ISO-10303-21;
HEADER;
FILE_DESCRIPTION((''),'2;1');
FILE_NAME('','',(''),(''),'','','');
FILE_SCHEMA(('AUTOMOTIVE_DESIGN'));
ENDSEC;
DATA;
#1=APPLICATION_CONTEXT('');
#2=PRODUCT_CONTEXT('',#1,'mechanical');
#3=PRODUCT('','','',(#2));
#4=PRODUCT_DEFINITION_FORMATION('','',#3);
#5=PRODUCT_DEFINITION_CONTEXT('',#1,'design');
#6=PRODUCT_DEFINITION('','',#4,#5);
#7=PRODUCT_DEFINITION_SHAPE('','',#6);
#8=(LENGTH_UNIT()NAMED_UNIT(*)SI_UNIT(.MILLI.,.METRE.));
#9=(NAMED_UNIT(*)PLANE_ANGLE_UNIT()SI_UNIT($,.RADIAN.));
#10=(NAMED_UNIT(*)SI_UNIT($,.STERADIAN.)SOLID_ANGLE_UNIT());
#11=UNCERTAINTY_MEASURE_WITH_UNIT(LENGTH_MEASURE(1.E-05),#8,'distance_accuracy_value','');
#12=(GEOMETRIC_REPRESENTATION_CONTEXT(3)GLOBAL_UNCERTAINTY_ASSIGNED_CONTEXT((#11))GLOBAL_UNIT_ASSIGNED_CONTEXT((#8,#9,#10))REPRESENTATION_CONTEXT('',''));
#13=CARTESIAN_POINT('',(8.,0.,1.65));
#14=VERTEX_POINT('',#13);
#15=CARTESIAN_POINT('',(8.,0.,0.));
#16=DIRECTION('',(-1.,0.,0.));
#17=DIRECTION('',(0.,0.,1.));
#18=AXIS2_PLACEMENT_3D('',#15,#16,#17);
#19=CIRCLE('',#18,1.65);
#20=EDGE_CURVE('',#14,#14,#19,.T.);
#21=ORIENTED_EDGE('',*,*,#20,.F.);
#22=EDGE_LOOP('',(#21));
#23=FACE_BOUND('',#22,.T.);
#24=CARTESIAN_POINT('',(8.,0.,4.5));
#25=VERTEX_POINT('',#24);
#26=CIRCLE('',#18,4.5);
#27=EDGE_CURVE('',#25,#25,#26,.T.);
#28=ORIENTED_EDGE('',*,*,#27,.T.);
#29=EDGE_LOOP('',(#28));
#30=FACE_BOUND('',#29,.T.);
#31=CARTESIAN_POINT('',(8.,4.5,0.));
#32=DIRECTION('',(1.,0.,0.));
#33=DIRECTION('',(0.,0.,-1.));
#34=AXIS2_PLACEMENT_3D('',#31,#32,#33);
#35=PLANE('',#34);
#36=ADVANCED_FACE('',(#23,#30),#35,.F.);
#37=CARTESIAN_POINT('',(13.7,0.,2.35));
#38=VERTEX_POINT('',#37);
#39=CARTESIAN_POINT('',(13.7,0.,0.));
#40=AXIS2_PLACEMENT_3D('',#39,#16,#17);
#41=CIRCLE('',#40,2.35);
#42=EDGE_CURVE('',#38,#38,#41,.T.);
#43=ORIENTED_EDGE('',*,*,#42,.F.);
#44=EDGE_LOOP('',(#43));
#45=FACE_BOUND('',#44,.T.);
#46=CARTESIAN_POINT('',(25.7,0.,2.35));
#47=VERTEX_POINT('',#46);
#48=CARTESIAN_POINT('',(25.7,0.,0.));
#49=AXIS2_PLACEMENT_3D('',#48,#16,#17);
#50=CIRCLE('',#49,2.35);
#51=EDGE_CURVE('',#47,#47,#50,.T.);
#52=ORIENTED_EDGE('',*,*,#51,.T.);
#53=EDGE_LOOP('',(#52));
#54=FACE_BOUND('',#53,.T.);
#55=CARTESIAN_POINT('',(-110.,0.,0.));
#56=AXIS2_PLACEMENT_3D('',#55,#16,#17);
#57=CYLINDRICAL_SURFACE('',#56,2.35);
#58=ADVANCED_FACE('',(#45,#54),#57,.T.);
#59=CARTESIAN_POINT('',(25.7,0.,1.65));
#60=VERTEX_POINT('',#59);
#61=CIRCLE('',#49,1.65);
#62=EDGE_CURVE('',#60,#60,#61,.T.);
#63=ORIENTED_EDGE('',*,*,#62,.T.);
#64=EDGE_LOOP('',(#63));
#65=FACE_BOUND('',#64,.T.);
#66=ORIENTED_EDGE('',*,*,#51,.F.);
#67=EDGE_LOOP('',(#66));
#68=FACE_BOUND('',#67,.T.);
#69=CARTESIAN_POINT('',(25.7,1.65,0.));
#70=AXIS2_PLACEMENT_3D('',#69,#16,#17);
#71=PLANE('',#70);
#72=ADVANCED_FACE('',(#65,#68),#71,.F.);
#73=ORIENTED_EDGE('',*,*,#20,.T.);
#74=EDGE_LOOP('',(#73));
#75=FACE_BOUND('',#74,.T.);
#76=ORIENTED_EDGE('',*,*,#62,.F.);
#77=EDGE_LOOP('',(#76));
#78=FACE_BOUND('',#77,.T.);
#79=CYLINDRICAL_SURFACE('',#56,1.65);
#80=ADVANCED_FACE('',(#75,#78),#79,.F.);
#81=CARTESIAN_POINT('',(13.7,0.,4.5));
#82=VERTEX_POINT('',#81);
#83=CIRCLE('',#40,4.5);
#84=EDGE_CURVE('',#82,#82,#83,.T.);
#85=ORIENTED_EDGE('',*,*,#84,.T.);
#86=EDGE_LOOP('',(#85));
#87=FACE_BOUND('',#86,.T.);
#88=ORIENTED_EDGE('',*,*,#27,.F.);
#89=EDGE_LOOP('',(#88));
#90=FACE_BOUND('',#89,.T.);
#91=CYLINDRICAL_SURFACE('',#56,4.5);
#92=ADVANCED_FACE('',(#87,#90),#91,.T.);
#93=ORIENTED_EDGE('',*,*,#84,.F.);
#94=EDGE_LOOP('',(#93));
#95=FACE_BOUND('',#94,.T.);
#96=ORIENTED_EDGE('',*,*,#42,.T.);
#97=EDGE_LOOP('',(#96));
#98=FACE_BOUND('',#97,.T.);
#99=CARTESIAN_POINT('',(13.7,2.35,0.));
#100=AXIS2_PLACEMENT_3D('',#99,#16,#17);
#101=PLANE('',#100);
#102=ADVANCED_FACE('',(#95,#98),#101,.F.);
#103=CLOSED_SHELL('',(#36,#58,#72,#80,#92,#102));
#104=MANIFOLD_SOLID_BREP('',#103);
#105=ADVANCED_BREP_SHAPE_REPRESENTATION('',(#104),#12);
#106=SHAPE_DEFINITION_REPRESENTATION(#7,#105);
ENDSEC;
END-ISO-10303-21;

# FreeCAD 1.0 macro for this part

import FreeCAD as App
import Part
import Sketcher
from FreeCAD import Vector


def add_polygon(sketch, points):
    """Adds a closed chain of lines whose ends are joined by coincident constraints."""
    first, n = sketch.GeometryCount, len(points)
    for a, b in zip(points, points[1:] + points[:1]):
        sketch.addGeometry(Part.LineSegment(App.Vector(*a, 0), App.Vector(*b, 0)), False)
    for i in range(n):
        sketch.addConstraint(Sketcher.Constraint("Coincident", first + i, 2, first + (i + 1) % n, 1))

doc = App.newDocument("Part")
body = doc.addObject("PartDesign::Body", "Body")

sketch1 = doc.addObject("Sketcher::SketchObject", "Sketch")
body.addObject(sketch1)
sketch1.AttachmentSupport = (doc.XY_Plane, [""])
sketch1.MapMode = "FlatFace"
add_polygon(sketch1, [(8, 1.65), (25.7, 1.65), (25.7, 2.35), (13.7, 2.35), (13.7, 4.5), (8, 4.5)])
sketch1.addConstraint([
    Sketcher.Constraint("Horizontal", 0),
    Sketcher.Constraint("Vertical", 1),
    Sketcher.Constraint("Horizontal", 2),
    Sketcher.Constraint("Vertical", 3),
    Sketcher.Constraint("Horizontal", 4),
    Sketcher.Constraint("Vertical", 5),
    Sketcher.Constraint("DistanceX", 2, 2, 2, 1, 12.0),
    Sketcher.Constraint("DistanceX", 0, 1, 0, 2, 17.7),
    Sketcher.Constraint("DistanceY", 1, 1, 1, 2, 0.7),
    Sketcher.Constraint("DistanceX", -1, 1, 4, 2, 8.0),
    Sketcher.Constraint("DistanceY", 3, 1, 3, 2, 2.15),
    Sketcher.Constraint("DistanceY", -1, 1, 3, 2, 4.5),
])
revolution = doc.addObject("PartDesign::Revolution", "Revolution")
body.addObject(revolution)
revolution.Profile = sketch1
revolution.ReferenceAxis = (sketch1, ["H_Axis"])
revolution.Angle = 360

doc.recompute()
